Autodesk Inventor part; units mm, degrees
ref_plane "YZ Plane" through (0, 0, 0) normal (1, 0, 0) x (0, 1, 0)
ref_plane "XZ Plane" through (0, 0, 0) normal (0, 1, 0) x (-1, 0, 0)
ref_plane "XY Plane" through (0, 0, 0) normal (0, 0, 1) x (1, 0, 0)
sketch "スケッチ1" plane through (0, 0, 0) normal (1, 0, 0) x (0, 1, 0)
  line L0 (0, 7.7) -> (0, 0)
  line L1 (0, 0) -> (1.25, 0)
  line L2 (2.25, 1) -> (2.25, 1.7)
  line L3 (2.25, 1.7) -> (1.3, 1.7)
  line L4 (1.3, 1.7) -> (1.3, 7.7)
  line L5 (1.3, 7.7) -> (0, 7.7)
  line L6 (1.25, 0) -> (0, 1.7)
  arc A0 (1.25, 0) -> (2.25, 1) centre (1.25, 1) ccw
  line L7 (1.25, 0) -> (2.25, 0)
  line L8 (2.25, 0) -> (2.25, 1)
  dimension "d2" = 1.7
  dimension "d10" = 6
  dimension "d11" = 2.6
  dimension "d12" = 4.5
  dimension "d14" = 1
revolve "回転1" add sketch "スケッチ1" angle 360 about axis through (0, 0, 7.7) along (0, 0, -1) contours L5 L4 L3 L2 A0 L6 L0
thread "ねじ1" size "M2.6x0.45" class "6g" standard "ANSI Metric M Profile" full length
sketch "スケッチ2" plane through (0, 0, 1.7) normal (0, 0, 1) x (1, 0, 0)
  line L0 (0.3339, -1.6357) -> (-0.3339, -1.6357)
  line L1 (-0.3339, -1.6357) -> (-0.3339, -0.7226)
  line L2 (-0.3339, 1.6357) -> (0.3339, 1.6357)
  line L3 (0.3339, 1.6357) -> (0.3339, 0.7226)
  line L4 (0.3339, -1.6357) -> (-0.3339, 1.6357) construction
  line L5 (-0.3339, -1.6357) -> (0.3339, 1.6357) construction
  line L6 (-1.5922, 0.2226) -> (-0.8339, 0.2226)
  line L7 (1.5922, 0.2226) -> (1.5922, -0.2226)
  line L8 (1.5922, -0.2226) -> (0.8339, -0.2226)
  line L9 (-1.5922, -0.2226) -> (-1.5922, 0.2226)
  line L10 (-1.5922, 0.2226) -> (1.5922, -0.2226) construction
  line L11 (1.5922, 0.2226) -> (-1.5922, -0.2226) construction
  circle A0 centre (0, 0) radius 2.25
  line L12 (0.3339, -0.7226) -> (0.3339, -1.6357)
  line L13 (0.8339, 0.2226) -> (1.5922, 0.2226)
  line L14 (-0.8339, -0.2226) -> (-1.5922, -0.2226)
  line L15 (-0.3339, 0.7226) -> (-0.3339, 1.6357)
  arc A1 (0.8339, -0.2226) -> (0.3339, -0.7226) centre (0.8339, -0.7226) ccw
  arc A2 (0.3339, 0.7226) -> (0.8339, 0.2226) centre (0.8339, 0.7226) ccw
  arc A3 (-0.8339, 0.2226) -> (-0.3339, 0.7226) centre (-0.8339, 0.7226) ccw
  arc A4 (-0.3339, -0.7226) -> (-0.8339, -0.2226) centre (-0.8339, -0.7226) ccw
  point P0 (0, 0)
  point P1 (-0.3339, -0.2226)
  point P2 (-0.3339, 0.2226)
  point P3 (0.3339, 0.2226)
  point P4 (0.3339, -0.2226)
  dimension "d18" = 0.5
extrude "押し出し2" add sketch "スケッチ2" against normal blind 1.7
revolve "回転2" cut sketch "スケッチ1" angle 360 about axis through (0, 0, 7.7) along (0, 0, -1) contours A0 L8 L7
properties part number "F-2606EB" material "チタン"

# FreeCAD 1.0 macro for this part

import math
import FreeCAD as App
import Part
import Sketcher
from FreeCAD import Vector
Q = App.Units.Quantity

doc = App.newDocument("Part")
body = doc.addObject("PartDesign::Body", "Body")

sketch1 = body.newObject("Sketcher::SketchObject", "Sketch")
sketch1.AttachmentSupport = (doc.getObject("YZ_Plane"), [""])
sketch1.MapMode = "FlatFace"
sketch1.addGeometry([
    Part.LineSegment(Vector(1.3, 7.7, 0), Vector(0, 7.7, 0)),
    Part.LineSegment(Vector(0, 7.7, 0), Vector(0, 1.7, 0)),
    Part.LineSegment(Vector(0, 1.7, 0), Vector(1.2, 0, 0)),
    Part.ArcOfCircle(Part.Circle(Vector(1.2, 1, 0), Vector(0, 0, 1), 1), math.radians(-90), math.radians(0)),
    Part.LineSegment(Vector(2.2, 1, 0), Vector(2.2, 1.7, 0)),
    Part.LineSegment(Vector(2.2, 1.7, 0), Vector(1.3, 1.7, 0)),
    Part.LineSegment(Vector(1.3, 1.7, 0), Vector(1.3, 7.7, 0)),
], False)
sketch1.addConstraint([
    Sketcher.Constraint("Coincident", 0, 2, 1, 1),
    Sketcher.Constraint("Coincident", 1, 2, 2, 1),
    Sketcher.Constraint("Coincident", 2, 2, 3, 1),
    Sketcher.Constraint("Tangent", 3, 2, 4, 1),
    Sketcher.Constraint("Coincident", 4, 2, 5, 1),
    Sketcher.Constraint("Coincident", 5, 2, 6, 1),
    Sketcher.Constraint("Coincident", 6, 2, 0, 1),
    Sketcher.Constraint("Horizontal", 0),
    Sketcher.Constraint("Vertical", 1),
    Sketcher.Constraint("Vertical", 4),
    Sketcher.Constraint("Horizontal", 5),
    Sketcher.Constraint("Vertical", 6),
    Sketcher.Constraint("PointOnObject", 0, 2, -2),
    Sketcher.Constraint("PointOnObject", 2, 2, -1),
    Sketcher.Constraint("Horizontal", 1, 2, 4, 2),
    Sketcher.Constraint("Vertical", 3, 3, 2, 2),
    Sketcher.Constraint("Radius", 3, Q("1 mm")),
    Sketcher.Constraint("DistanceY", 1, 2, 1, 1, Q("6 mm")),
    Sketcher.Constraint("DistanceY", -1, 1, 1, 2, Q("1.7 mm")),
    Sketcher.Constraint("DistanceX", 0, 2, 0, 1, Q("1.3 mm")),
    Sketcher.Constraint("DistanceX", 5, 2, 5, 1, Q("0.95 mm")),
])
revolution = body.newObject("PartDesign::Revolution", "Revolution")
revolution.Profile = sketch1
revolution.ReferenceAxis = (sketch1, ["V_Axis"])
revolution.Angle = 360

sketch2 = body.newObject("Sketcher::SketchObject", "Sketch001")
sketch2.AttachmentSupport = (doc.getObject("XY_Plane"), [""])
sketch2.MapMode = "FlatFace"
sketch2.AttachmentOffset = App.Placement(Vector(0, 0, 1.7), App.Rotation())
sketch2.addGeometry([
    Part.Circle(Vector(0, 0, 0), Vector(0, 0, 1), 2.25),
    Part.LineSegment(Vector(0.33, -0.72, 0), Vector(0.33, -1.64, 0)),
    Part.LineSegment(Vector(0.33, -1.64, 0), Vector(-0.33, -1.64, 0)),
    Part.LineSegment(Vector(-0.33, -1.64, 0), Vector(-0.33, -0.72, 0)),
    Part.ArcOfCircle(Part.Circle(Vector(-0.83, -0.72, 0), Vector(0, 0, 1), 0.5), math.radians(0), math.radians(90)),
    Part.LineSegment(Vector(-0.83, -0.22, 0), Vector(-1.59, -0.22, 0)),
    Part.LineSegment(Vector(-1.59, -0.22, 0), Vector(-1.59, 0.22, 0)),
    Part.LineSegment(Vector(-1.59, 0.22, 0), Vector(-0.83, 0.22, 0)),
    Part.ArcOfCircle(Part.Circle(Vector(-0.83, 0.72, 0), Vector(0, 0, 1), 0.5), math.radians(-90), math.radians(0)),
    Part.LineSegment(Vector(-0.33, 0.72, 0), Vector(-0.33, 1.64, 0)),
    Part.LineSegment(Vector(-0.33, 1.64, 0), Vector(0.33, 1.64, 0)),
    Part.LineSegment(Vector(0.33, 1.64, 0), Vector(0.33, 0.72, 0)),
    Part.ArcOfCircle(Part.Circle(Vector(0.83, 0.72, 0), Vector(0, 0, 1), 0.5), math.radians(180), math.radians(270)),
    Part.LineSegment(Vector(0.83, 0.22, 0), Vector(1.59, 0.22, 0)),
    Part.LineSegment(Vector(1.59, 0.22, 0), Vector(1.59, -0.22, 0)),
    Part.LineSegment(Vector(1.59, -0.22, 0), Vector(0.83, -0.22, 0)),
    Part.ArcOfCircle(Part.Circle(Vector(0.83, -0.72, 0), Vector(0, 0, 1), 0.5), math.radians(90), math.radians(180)),
], False)
sketch2.addConstraint([
    Sketcher.Constraint("Coincident", 1, 2, 2, 1),
    Sketcher.Constraint("Coincident", 2, 2, 3, 1),
    Sketcher.Constraint("Tangent", 3, 2, 4, 1),
    Sketcher.Constraint("Tangent", 4, 2, 5, 1),
    Sketcher.Constraint("Coincident", 5, 2, 6, 1),
    Sketcher.Constraint("Coincident", 6, 2, 7, 1),
    Sketcher.Constraint("Tangent", 7, 2, 8, 1),
    Sketcher.Constraint("Tangent", 8, 2, 9, 1),
    Sketcher.Constraint("Coincident", 9, 2, 10, 1),
    Sketcher.Constraint("Coincident", 10, 2, 11, 1),
    Sketcher.Constraint("Tangent", 11, 2, 12, 1),
    Sketcher.Constraint("Tangent", 12, 2, 13, 1),
    Sketcher.Constraint("Coincident", 13, 2, 14, 1),
    Sketcher.Constraint("Coincident", 14, 2, 15, 1),
    Sketcher.Constraint("Tangent", 15, 2, 16, 1),
    Sketcher.Constraint("Tangent", 16, 2, 1, 1),
    Sketcher.Constraint("Vertical", 1),
    Sketcher.Constraint("Horizontal", 2),
    Sketcher.Constraint("Vertical", 3),
    Sketcher.Constraint("Horizontal", 5),
    Sketcher.Constraint("Vertical", 6),
    Sketcher.Constraint("Horizontal", 7),
    Sketcher.Constraint("Vertical", 9),
    Sketcher.Constraint("Horizontal", 10),
    Sketcher.Constraint("Vertical", 11),
    Sketcher.Constraint("Horizontal", 13),
    Sketcher.Constraint("Vertical", 14),
    Sketcher.Constraint("Horizontal", 15),
    Sketcher.Constraint("Coincident", 0, 3, -1, 1),
    Sketcher.Constraint("Equal", 4, 8),
    Sketcher.Constraint("Equal", 8, 12),
    Sketcher.Constraint("Equal", 12, 16),
    Sketcher.Constraint("Symmetric", 4, 3, 12, 3, -1, 1),
    Sketcher.Constraint("Symmetric", 8, 3, 16, 3, -1, 1),
    Sketcher.Constraint("Symmetric", 8, 3, 12, 3, -2),
    Sketcher.Constraint("Equal", 7, 13),
    Sketcher.Constraint("Equal", 3, 9),
    Sketcher.Constraint("Radius", 4, Q("0.5 mm")),
    Sketcher.Constraint("Diameter", 0, Q("4.5 mm")),
    Sketcher.Constraint("DistanceY", 1, 2, 1, 1, Q("0.913 mm")),
    Sketcher.Constraint("DistanceX", 2, 2, 2, 1, Q("0.6678 mm")),
    Sketcher.Constraint("DistanceX", 5, 2, 5, 1, Q("0.7583 mm")),
    Sketcher.Constraint("DistanceY", 6, 1, 6, 2, Q("0.4452 mm")),
])
pad1 = body.newObject("PartDesign::Pad", "Pad")
pad1.Profile = sketch2
pad1.Length = 1.7
pad1.Reversed = True

sketch3 = body.newObject("Sketcher::SketchObject", "Sketch002")
sketch3.AttachmentSupport = (doc.getObject("YZ_Plane"), [""])
sketch3.MapMode = "FlatFace"
sketch3.addGeometry([
    Part.ArcOfCircle(Part.Circle(Vector(1.2, 1, 0), Vector(0, 0, 1), 1), math.radians(-90), math.radians(0)),
    Part.LineSegment(Vector(1.2, 0, 0), Vector(2.2, 0, 0)),
    Part.LineSegment(Vector(2.2, 0, 0), Vector(2.2, 1, 0)),
], False)
sketch3.addConstraint([
    Sketcher.Constraint("Tangent", 0, 1, 1, 1),
    Sketcher.Constraint("Coincident", 1, 2, 2, 1),
    Sketcher.Constraint("Tangent", 2, 2, 0, 2),
    Sketcher.Constraint("Horizontal", 1),
    Sketcher.Constraint("Vertical", 2),
    Sketcher.Constraint("PointOnObject", 0, 1, -1),
    Sketcher.Constraint("Radius", 0, Q("1 mm")),
    Sketcher.Constraint("DistanceX", -1, 1, 0, 3, Q("1.25 mm")),
])
groove = body.newObject("PartDesign::Groove", "Groove")
groove.Profile = sketch3
groove.ReferenceAxis = (sketch3, ["V_Axis"])
groove.Angle = 360

doc.recompute()
